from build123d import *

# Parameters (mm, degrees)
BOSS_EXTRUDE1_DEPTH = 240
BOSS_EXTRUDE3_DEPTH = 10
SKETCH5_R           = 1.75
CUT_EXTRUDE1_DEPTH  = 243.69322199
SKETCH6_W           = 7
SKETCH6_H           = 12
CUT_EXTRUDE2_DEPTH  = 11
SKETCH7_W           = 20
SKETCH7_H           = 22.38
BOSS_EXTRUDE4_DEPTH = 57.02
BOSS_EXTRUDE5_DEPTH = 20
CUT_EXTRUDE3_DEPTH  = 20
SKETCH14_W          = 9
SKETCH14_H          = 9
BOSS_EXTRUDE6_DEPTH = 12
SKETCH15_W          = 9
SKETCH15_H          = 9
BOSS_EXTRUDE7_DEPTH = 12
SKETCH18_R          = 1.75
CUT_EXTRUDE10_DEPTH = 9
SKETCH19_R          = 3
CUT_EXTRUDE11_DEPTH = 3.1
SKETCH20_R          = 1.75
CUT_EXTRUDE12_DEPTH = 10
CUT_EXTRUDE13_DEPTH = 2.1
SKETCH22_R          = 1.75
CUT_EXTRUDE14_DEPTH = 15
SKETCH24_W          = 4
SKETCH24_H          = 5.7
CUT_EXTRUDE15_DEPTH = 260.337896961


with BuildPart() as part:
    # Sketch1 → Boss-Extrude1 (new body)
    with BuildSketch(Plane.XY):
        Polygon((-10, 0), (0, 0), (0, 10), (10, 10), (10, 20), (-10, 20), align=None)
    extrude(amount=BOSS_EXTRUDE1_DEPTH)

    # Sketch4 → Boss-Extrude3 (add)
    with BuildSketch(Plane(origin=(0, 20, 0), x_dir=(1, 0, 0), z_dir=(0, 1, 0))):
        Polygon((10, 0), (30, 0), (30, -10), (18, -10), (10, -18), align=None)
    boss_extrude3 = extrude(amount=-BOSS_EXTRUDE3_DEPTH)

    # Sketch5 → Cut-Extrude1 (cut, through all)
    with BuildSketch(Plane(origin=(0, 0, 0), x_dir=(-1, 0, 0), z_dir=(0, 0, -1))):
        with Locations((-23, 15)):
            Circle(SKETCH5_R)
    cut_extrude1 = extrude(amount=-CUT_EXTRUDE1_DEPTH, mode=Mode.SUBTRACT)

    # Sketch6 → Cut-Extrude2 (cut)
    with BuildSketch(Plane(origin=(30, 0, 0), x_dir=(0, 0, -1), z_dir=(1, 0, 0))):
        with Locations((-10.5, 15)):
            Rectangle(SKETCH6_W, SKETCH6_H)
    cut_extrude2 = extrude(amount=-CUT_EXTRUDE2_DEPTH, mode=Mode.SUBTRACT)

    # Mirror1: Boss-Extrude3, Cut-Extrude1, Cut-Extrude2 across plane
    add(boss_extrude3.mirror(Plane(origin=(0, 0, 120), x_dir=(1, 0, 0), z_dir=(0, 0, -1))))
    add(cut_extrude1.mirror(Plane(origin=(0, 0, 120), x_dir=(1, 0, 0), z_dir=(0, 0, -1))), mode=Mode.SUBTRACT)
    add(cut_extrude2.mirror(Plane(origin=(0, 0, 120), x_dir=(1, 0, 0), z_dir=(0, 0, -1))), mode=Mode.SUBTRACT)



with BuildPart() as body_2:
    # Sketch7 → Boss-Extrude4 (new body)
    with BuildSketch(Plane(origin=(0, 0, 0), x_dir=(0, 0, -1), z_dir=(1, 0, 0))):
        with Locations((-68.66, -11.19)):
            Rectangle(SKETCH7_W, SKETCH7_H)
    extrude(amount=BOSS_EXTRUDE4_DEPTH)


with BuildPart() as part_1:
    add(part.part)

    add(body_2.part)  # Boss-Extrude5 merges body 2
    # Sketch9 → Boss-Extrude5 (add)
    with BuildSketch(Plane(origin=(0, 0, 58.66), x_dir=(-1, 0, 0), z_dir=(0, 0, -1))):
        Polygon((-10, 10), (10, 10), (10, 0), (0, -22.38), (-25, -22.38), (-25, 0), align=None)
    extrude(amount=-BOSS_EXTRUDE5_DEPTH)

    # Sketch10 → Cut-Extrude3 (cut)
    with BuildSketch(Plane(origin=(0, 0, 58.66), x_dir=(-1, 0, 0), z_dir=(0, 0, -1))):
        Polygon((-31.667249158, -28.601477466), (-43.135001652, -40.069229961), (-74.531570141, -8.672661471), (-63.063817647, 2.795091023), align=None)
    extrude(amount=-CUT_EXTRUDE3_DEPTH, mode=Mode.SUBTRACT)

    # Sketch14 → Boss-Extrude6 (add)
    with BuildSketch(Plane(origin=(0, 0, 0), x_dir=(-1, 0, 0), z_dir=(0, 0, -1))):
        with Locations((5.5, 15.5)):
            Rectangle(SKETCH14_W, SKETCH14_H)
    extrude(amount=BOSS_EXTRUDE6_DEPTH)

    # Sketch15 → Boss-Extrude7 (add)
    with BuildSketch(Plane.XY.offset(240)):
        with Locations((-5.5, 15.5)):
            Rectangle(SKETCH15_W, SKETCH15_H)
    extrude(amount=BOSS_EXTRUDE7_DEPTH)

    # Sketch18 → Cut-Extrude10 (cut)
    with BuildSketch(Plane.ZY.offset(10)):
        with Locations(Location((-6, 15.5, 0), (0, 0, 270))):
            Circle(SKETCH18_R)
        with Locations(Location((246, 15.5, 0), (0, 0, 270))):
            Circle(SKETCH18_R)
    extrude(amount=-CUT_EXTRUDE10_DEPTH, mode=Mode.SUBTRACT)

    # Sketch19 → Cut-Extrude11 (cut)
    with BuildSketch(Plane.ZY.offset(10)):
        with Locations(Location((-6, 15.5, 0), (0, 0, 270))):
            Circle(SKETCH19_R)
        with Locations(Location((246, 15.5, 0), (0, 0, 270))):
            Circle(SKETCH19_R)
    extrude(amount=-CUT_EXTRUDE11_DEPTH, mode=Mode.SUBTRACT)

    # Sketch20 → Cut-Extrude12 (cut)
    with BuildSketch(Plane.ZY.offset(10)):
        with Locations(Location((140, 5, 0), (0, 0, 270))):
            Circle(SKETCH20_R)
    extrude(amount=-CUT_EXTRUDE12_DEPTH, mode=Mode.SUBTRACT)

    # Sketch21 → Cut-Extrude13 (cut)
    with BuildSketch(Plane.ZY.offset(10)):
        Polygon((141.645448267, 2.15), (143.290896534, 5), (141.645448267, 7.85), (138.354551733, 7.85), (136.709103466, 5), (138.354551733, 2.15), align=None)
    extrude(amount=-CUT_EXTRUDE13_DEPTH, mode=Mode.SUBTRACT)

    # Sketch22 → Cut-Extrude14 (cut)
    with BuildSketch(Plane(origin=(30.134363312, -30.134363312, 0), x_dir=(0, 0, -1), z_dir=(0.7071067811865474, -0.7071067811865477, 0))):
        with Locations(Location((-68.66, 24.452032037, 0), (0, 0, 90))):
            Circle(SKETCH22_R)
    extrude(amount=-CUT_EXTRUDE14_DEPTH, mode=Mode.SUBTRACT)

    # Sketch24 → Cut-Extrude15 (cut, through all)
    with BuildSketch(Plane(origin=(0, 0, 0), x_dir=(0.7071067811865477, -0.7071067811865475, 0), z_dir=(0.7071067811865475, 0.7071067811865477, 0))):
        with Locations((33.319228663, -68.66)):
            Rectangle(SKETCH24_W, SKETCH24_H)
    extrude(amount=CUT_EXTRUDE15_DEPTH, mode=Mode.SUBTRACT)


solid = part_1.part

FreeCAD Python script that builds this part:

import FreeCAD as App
import Part
import Sketcher
from FreeCAD import Vector
Q = App.Units.Quantity


def add_polygon(sketch, points):
    """Adds a closed chain of lines whose ends are joined by coincident constraints."""
    first, n = sketch.GeometryCount, len(points)
    for a, b in zip(points, points[1:] + points[:1]):
        sketch.addGeometry(Part.LineSegment(App.Vector(*a, 0), App.Vector(*b, 0)), False)
    for i in range(n):
        sketch.addConstraint(Sketcher.Constraint("Coincident", first + i, 2, first + (i + 1) % n, 1))

doc = App.newDocument("Part")
params = doc.addObject("Spreadsheet::Sheet", "Params")
for row, (alias, value) in enumerate([
    ("sketch1_width", "10 mm"),
    ("pad1_length", "240 mm"),
    ("sketch2_width", "20 mm"),
    ("sketch2_width2", "12 mm"),
    ("sketch2_height", "18 mm"),
    ("sketch2_height2", "10 mm"),
    ("pad2_length", "10 mm"),
    ("sketch3_diameter", "3.5 mm"),
    ("sketch4_width", "12 mm"),
    ("sketch4_height", "7 mm"),
    ("pocket2_length", "11 mm"),
    ("sketch5_height", "20 mm"),
    ("sketch5_width", "22.38 mm"),
    ("pad3_length", "57.02 mm"),
    ("sketch6_width", "20 mm"),
    ("sketch6_width2", "25 mm"),
    ("sketch6_height", "10 mm"),
    ("sketch6_height2", "22.38 mm"),
    ("pad4_length", "20 mm"),
    ("pocket3_length", "20 mm"),
    ("sketch8_width", "9 mm"),
    ("pad5_length", "12 mm"),
    ("sketch9_width", "9 mm"),
    ("pad6_length", "12 mm"),
    ("sketch10_diameter", "3.5 mm"),
    ("pocket4_length", "9 mm"),
    ("sketch11_diameter", "6 mm"),
    ("pocket5_length", "3.1 mm"),
    ("sketch12_diameter", "3.5 mm"),
    ("pocket6_length", "10 mm"),
    ("pocket7_length", "2.1 mm"),
    ("sketch14_diameter", "3.5 mm"),
    ("pocket8_length", "15 mm"),
    ("sketch15_width", "4 mm"),
    ("sketch15_height", "5.7 mm"),
], start=1):
    params.set(f"A{row}", alias)
    params.set(f"B{row}", "=" + value)
    params.setAlias(f"B{row}", alias)

body = doc.addObject("PartDesign::Body", "Body")

# Sketch on XY plane
sketch1 = doc.addObject("Sketcher::SketchObject", "Sketch")
body.addObject(sketch1)
sketch1.AttachmentSupport = (doc.XY_Plane, [""])
sketch1.MapMode = "FlatFace"
add_polygon(sketch1, [(-10, 0), (0, 0), (0, 10), (10, 10), (10, 20), (-10, 20)])  # lines 0-5
sketch1.addConstraint(Sketcher.Constraint("Horizontal", 0))
sketch1.addConstraint(Sketcher.Constraint("Vertical", 1))
sketch1.addConstraint(Sketcher.Constraint("Horizontal", 2))
sketch1.addConstraint(Sketcher.Constraint("Vertical", 3))
sketch1.addConstraint(Sketcher.Constraint("Horizontal", 4))
sketch1.addConstraint(Sketcher.Constraint("Vertical", 5))
sketch1.addConstraint(Sketcher.Constraint("Coincident", 0, 2, -1, 1))
sketch1.addConstraint(Sketcher.Constraint("Equal", 0, 2))
sketch1.addConstraint(Sketcher.Constraint("Equal", 2, 1))
sketch1.addConstraint(Sketcher.Constraint("Equal", 1, 3))
sketch1.addConstraint(Sketcher.Constraint("DistanceX", 0, 1, 0, 2, 10.0))
sketch1.setExpression("Constraints[16]", "Params.sketch1_width")
pad1 = doc.addObject("PartDesign::Pad", "Pad")
body.addObject(pad1)
pad1.Profile = sketch1
pad1.setExpression("Length", "Params.pad1_length")

# Sketch on XZ plane
sketch2 = doc.addObject("Sketcher::SketchObject", "Sketch001")
body.addObject(sketch2)
sketch2.AttachmentSupport = (doc.XZ_Plane, [""])
sketch2.MapMode = "FlatFace"
sketch2.AttachmentOffset = App.Placement(Vector(0, 0, -20), App.Rotation())
add_polygon(sketch2, [(30, 0), (10, 0), (10, 18), (18, 10), (30, 10)])  # lines 0-4
sketch2.addConstraint(Sketcher.Constraint("Horizontal", 0))
sketch2.addConstraint(Sketcher.Constraint("Vertical", 1))
sketch2.addConstraint(Sketcher.Constraint("Horizontal", 3))
sketch2.addConstraint(Sketcher.Constraint("Vertical", 4))
sketch2.addConstraint(Sketcher.Constraint("PointOnObject", 0, 2, -1))
sketch2.addConstraint(Sketcher.Constraint("DistanceX", 0, 2, 0, 1, 20.0))
sketch2.addConstraint(Sketcher.Constraint("DistanceX", 3, 1, 3, 2, 12.0))
sketch2.addConstraint(Sketcher.Constraint("DistanceY", 1, 1, 1, 2, 18.0))
sketch2.addConstraint(Sketcher.Constraint("DistanceY", 4, 2, 4, 1, 10.0))
sketch2.addConstraint(Sketcher.Constraint("DistanceX", -1, 1, 0, 2, 10.0))
sketch2.setExpression("Constraints[10]", "Params.sketch2_width")
sketch2.setExpression("Constraints[11]", "Params.sketch2_width2")
sketch2.setExpression("Constraints[12]", "Params.sketch2_height")
sketch2.setExpression("Constraints[13]", "Params.sketch2_height2")
pad2 = doc.addObject("PartDesign::Pad", "Pad001")
body.addObject(pad2)
pad2.Profile = sketch2
pad2.setExpression("Length", "Params.pad2_length")

# Sketch on XY plane
sketch3 = doc.addObject("Sketcher::SketchObject", "Sketch002")
body.addObject(sketch3)
sketch3.AttachmentSupport = (doc.XY_Plane, [""])
sketch3.MapMode = "FlatFace"
sketch3.addGeometry(Part.Circle(Vector(23, 15, 0), Vector(0, 0, 1), 1.8), False)
sketch3.addConstraint(Sketcher.Constraint("Diameter", 0, 3.5))
sketch3.addConstraint(Sketcher.Constraint("DistanceX", -1, 1, 0, 3, 23.0))
sketch3.addConstraint(Sketcher.Constraint("DistanceY", -1, 1, 0, 3, 15.0))
sketch3.setExpression("Constraints[0]", "Params.sketch3_diameter")
pocket1 = doc.addObject("PartDesign::Pocket", "Pocket")
body.addObject(pocket1)
pocket1.Profile = sketch3
pocket1.Type = "ThroughAll"
pocket1.Reversed = True

# Sketch on YZ plane
sketch4 = doc.addObject("Sketcher::SketchObject", "Sketch003")
body.addObject(sketch4)
sketch4.AttachmentSupport = (doc.YZ_Plane, [""])
sketch4.MapMode = "FlatFace"
sketch4.AttachmentOffset = App.Placement(Vector(0, 0, 30), App.Rotation())
add_polygon(sketch4, [(21, 14), (9, 14), (9, 7), (21, 7)])  # lines 0-3
sketch4.addConstraint(Sketcher.Constraint("Horizontal", 0))
sketch4.addConstraint(Sketcher.Constraint("Vertical", 1))
sketch4.addConstraint(Sketcher.Constraint("Horizontal", 2))
sketch4.addConstraint(Sketcher.Constraint("Vertical", 3))
sketch4.addConstraint(Sketcher.Constraint("DistanceX", 0, 2, 0, 1, 12.0))
sketch4.addConstraint(Sketcher.Constraint("DistanceY", 1, 2, 1, 1, 7.0))
sketch4.addConstraint(Sketcher.Constraint("DistanceX", -1, 1, 0, 2, 9.0))
sketch4.addConstraint(Sketcher.Constraint("DistanceY", -1, 1, 0, 2, 14.0))
sketch4.setExpression("Constraints[8]", "Params.sketch4_width")
sketch4.setExpression("Constraints[9]", "Params.sketch4_height")
pocket2 = doc.addObject("PartDesign::Pocket", "Pocket001")
body.addObject(pocket2)
pocket2.Profile = sketch4
pocket2.setExpression("Length", "Params.pocket2_length")
doc.recompute()

datumplane = doc.addObject("PartDesign::Plane", "DatumPlane")
body.addObject(datumplane)
datumplane.AttachmentSupport = (doc.XY_Plane, [""])
datumplane.MapMode = "FlatFace"
datumplane.AttachmentOffset = App.Placement(Vector(0, 0, 120), App.Rotation())
mirrored = doc.addObject("PartDesign::Mirrored", "Mirrored")
body.addObject(mirrored)
mirrored.Originals = [pad2, pocket1, pocket2]
mirrored.MirrorPlane = (datumplane, [""])
body.Tip = mirrored
body2 = doc.addObject("PartDesign::Body", "Body001")

# Sketch on YZ plane
sketch5 = doc.addObject("Sketcher::SketchObject", "Sketch004")
body2.addObject(sketch5)
sketch5.AttachmentSupport = (doc.getObject("YZ_Plane001"), [""])
sketch5.MapMode = "FlatFace"
add_polygon(sketch5, [(0, 79), (-22, 79), (-22, 59), (0, 59)])  # lines 0-3
sketch5.addConstraint(Sketcher.Constraint("Horizontal", 0))
sketch5.addConstraint(Sketcher.Constraint("Vertical", 1))
sketch5.addConstraint(Sketcher.Constraint("Horizontal", 2))
sketch5.addConstraint(Sketcher.Constraint("Vertical", 3))
sketch5.addConstraint(Sketcher.Constraint("PointOnObject", 2, 2, -2))
sketch5.addConstraint(Sketcher.Constraint("DistanceY", 1, 2, 1, 1, 20.0))
sketch5.addConstraint(Sketcher.Constraint("DistanceX", 0, 2, 0, 1, 22.38))
sketch5.addConstraint(Sketcher.Constraint("DistanceY", -1, 1, 0, 2, 78.66))
sketch5.setExpression("Constraints[9]", "Params.sketch5_height")
sketch5.setExpression("Constraints[10]", "Params.sketch5_width")
pad3 = doc.addObject("PartDesign::Pad", "Pad002")
body2.addObject(pad3)
pad3.Profile = sketch5
pad3.setExpression("Length", "Params.pad3_length")
body.AllowCompound = True
doc.recompute()

boolean = doc.addObject("PartDesign::Boolean", "Boolean")
body.addObject(boolean)
boolean.Type = "Fuse"
boolean.addObjects([body2])

# Sketch on XY plane
sketch6 = doc.addObject("Sketcher::SketchObject", "Sketch005")
body.addObject(sketch6)
sketch6.AttachmentSupport = (doc.XY_Plane, [""])
sketch6.MapMode = "FlatFace"
sketch6.AttachmentOffset = App.Placement(Vector(0, 0, 58.66), App.Rotation())
add_polygon(sketch6, [(-10, 10), (10, 10), (25, 0), (25, -22), (0, -22), (-10, 0)])  # lines 0-5
sketch6.addConstraint(Sketcher.Constraint("Horizontal", 0))
sketch6.addConstraint(Sketcher.Constraint("Vertical", 2))
sketch6.addConstraint(Sketcher.Constraint("Horizontal", 3))
sketch6.addConstraint(Sketcher.Constraint("Vertical", 5))
sketch6.addConstraint(Sketcher.Constraint("PointOnObject", 1, 2, -1))
sketch6.addConstraint(Sketcher.Constraint("PointOnObject", 3, 2, -2))
sketch6.addConstraint(Sketcher.Constraint("PointOnObject", 4, 2, -1))
sketch6.addConstraint(Sketcher.Constraint("DistanceX", 0, 1, 0, 2, 20.0))
sketch6.addConstraint(Sketcher.Constraint("DistanceX", 3, 2, 3, 1, 25.0))
sketch6.addConstraint(Sketcher.Constraint("DistanceY", 5, 1, 5, 2, 10.0))
sketch6.addConstraint(Sketcher.Constraint("DistanceX", -1, 1, 0, 2, 10.0))
sketch6.addConstraint(Sketcher.Constraint("DistanceY", 2, 2, 2, 1, 22.38))
sketch6.setExpression("Constraints[13]", "Params.sketch6_width")
sketch6.setExpression("Constraints[14]", "Params.sketch6_width2")
sketch6.setExpression("Constraints[15]", "Params.sketch6_height")
sketch6.setExpression("Constraints[17]", "Params.sketch6_height2")
pad4 = doc.addObject("PartDesign::Pad", "Pad003")
body.addObject(pad4)
pad4.Profile = sketch6
pad4.setExpression("Length", "Params.pad4_length")

# Sketch on XY plane
sketch7 = doc.addObject("Sketcher::SketchObject", "Sketch006")
body.addObject(sketch7)
sketch7.AttachmentSupport = (doc.XY_Plane, [""])
sketch7.MapMode = "FlatFace"
sketch7.AttachmentOffset = App.Placement(Vector(0, 0, 58.66), App.Rotation())
add_polygon(sketch7, [(43, -40), (32, -29), (63, 3), (75, -9)])  # lines 0-3
sketch7.addConstraint(Sketcher.Constraint("Perpendicular", 0, 1))
sketch7.addConstraint(Sketcher.Constraint("Perpendicular", 1, 2))
sketch7.addConstraint(Sketcher.Constraint("Perpendicular", 2, 3))
sketch7.addConstraint(Sketcher.Constraint("Angle", 0, Q("135 deg")))
sketch7.addConstraint(Sketcher.Constraint("DistanceX", -1, 1, 3, 2, 43.135002))
sketch7.addConstraint(Sketcher.Constraint("Distance", 0, 16.217851))
sketch7.addConstraint(Sketcher.Constraint("DistanceY", -1, 1, 1, 2, 2.795091))
sketch7.addConstraint(Sketcher.Constraint("DistanceX", -1, 1, 2, 2, 74.53157))
pocket3 = doc.addObject("PartDesign::Pocket", "Pocket002")
body.addObject(pocket3)
pocket3.Profile = sketch7
pocket3.setExpression("Length", "Params.pocket3_length")
pocket3.Reversed = True

# Sketch on XY plane
sketch8 = doc.addObject("Sketcher::SketchObject", "Sketch007")
body.addObject(sketch8)
sketch8.AttachmentSupport = (doc.XY_Plane, [""])
sketch8.MapMode = "FlatFace"
add_polygon(sketch8, [(-1, 20), (-1, 11), (-10, 11), (-10, 20)])  # lines 0-3
sketch8.addConstraint(Sketcher.Constraint("Vertical", 0))
sketch8.addConstraint(Sketcher.Constraint("Horizontal", 1))
sketch8.addConstraint(Sketcher.Constraint("Vertical", 2))
sketch8.addConstraint(Sketcher.Constraint("Horizontal", 3))
sketch8.addConstraint(Sketcher.Constraint("Equal", 3, 0))
sketch8.addConstraint(Sketcher.Constraint("DistanceX", 1, 2, 1, 1, 9.0))
sketch8.addConstraint(Sketcher.Constraint("DistanceX", 0, 2, -1, 1, 1.0))
sketch8.addConstraint(Sketcher.Constraint("DistanceY", -1, 1, 0, 2, 11.0))
sketch8.setExpression("Constraints[9]", "Params.sketch8_width")
pad5 = doc.addObject("PartDesign::Pad", "Pad004")
body.addObject(pad5)
pad5.Profile = sketch8
pad5.setExpression("Length", "Params.pad5_length")
pad5.Reversed = True

# Sketch on XY plane
sketch9 = doc.addObject("Sketcher::SketchObject", "Sketch008")
body.addObject(sketch9)
sketch9.AttachmentSupport = (doc.XY_Plane, [""])
sketch9.MapMode = "FlatFace"
sketch9.AttachmentOffset = App.Placement(Vector(0, 0, 240), App.Rotation())
add_polygon(sketch9, [(-10, 20), (-10, 11), (-1, 11), (-1, 20)])  # lines 0-3
sketch9.addConstraint(Sketcher.Constraint("Vertical", 0))
sketch9.addConstraint(Sketcher.Constraint("Horizontal", 1))
sketch9.addConstraint(Sketcher.Constraint("Vertical", 2))
sketch9.addConstraint(Sketcher.Constraint("Horizontal", 3))
sketch9.addConstraint(Sketcher.Constraint("Equal", 3, 0))
sketch9.addConstraint(Sketcher.Constraint("DistanceX", 1, 1, 1, 2, 9.0))
sketch9.addConstraint(Sketcher.Constraint("DistanceX", 0, 2, -1, 1, 10.0))
sketch9.addConstraint(Sketcher.Constraint("DistanceY", -1, 1, 0, 2, 11.0))
sketch9.setExpression("Constraints[9]", "Params.sketch9_width")
pad6 = doc.addObject("PartDesign::Pad", "Pad005")
body.addObject(pad6)
pad6.Profile = sketch9
pad6.setExpression("Length", "Params.pad6_length")

# Sketch on YZ plane
sketch10 = doc.addObject("Sketcher::SketchObject", "Sketch009")
body.addObject(sketch10)
sketch10.AttachmentSupport = (doc.YZ_Plane, [""])
sketch10.MapMode = "FlatFace"
sketch10.AttachmentOffset = App.Placement(Vector(0, 0, -10), App.Rotation())
sketch10.addGeometry(Part.Circle(Vector(15.5, -6, 0), Vector(0, 0, 1), 1.8), False)
sketch10.addGeometry(Part.Circle(Vector(15.5, 246, 0), Vector(0, 0, 1), 1.8), False)
sketch10.addConstraint(Sketcher.Constraint("Equal", 0, 1))
sketch10.addConstraint(Sketcher.Constraint("Vertical", 0, 3, 1, 3))
sketch10.addConstraint(Sketcher.Constraint("Diameter", 0, 3.5))
sketch10.addConstraint(Sketcher.Constraint("DistanceY", 0, 3, -1, 1, 6.0))
sketch10.addConstraint(Sketcher.Constraint("DistanceY", -1, 1, 1, 3, 246.0))
sketch10.addConstraint(Sketcher.Constraint("DistanceX", -1, 1, 0, 3, 15.5))
sketch10.setExpression("Constraints[2]", "Params.sketch10_diameter")
pocket4 = doc.addObject("PartDesign::Pocket", "Pocket003")
body.addObject(pocket4)
pocket4.Profile = sketch10
pocket4.setExpression("Length", "Params.pocket4_length")
pocket4.Reversed = True

# Sketch on YZ plane
sketch11 = doc.addObject("Sketcher::SketchObject", "Sketch010")
body.addObject(sketch11)
sketch11.AttachmentSupport = (doc.YZ_Plane, [""])
sketch11.MapMode = "FlatFace"
sketch11.AttachmentOffset = App.Placement(Vector(0, 0, -10), App.Rotation())
sketch11.addGeometry(Part.Circle(Vector(15.5, -6, 0), Vector(0, 0, 1), 3), False)
sketch11.addGeometry(Part.Circle(Vector(15.5, 246, 0), Vector(0, 0, 1), 3), False)
sketch11.addConstraint(Sketcher.Constraint("Equal", 0, 1))
sketch11.addConstraint(Sketcher.Constraint("Vertical", 0, 3, 1, 3))
sketch11.addConstraint(Sketcher.Constraint("Diameter", 0, 6.0))
sketch11.addConstraint(Sketcher.Constraint("DistanceY", 0, 3, -1, 1, 6.0))
sketch11.addConstraint(Sketcher.Constraint("DistanceY", -1, 1, 1, 3, 246.0))
sketch11.addConstraint(Sketcher.Constraint("DistanceX", -1, 1, 0, 3, 15.5))
sketch11.setExpression("Constraints[2]", "Params.sketch11_diameter")
pocket5 = doc.addObject("PartDesign::Pocket", "Pocket004")
body.addObject(pocket5)
pocket5.Profile = sketch11
pocket5.setExpression("Length", "Params.pocket5_length")
pocket5.Reversed = True

# Sketch on YZ plane
sketch12 = doc.addObject("Sketcher::SketchObject", "Sketch011")
body.addObject(sketch12)
sketch12.AttachmentSupport = (doc.YZ_Plane, [""])
sketch12.MapMode = "FlatFace"
sketch12.AttachmentOffset = App.Placement(Vector(0, 0, -10), App.Rotation())
sketch12.addGeometry(Part.Circle(Vector(5, 140, 0), Vector(0, 0, 1), 1.8), False)
sketch12.addConstraint(Sketcher.Constraint("Diameter", 0, 3.5))
sketch12.addConstraint(Sketcher.Constraint("DistanceX", -1, 1, 0, 3, 5.0))
sketch12.addConstraint(Sketcher.Constraint("DistanceY", -1, 1, 0, 3, 140.0))
sketch12.setExpression("Constraints[0]", "Params.sketch12_diameter")
pocket6 = doc.addObject("PartDesign::Pocket", "Pocket005")
body.addObject(pocket6)
pocket6.Profile = sketch12
pocket6.setExpression("Length", "Params.pocket6_length")
pocket6.Reversed = True

# Sketch on YZ plane
sketch13 = doc.addObject("Sketcher::SketchObject", "Sketch012")
body.addObject(sketch13)
sketch13.AttachmentSupport = (doc.YZ_Plane, [""])
sketch13.MapMode = "FlatFace"
sketch13.AttachmentOffset = App.Placement(Vector(0, 0, -10), App.Rotation())
add_polygon(sketch13, [(2.1, 141.6), (5, 143.3), (7.8, 141.6), (7.8, 138.4), (5, 136.7), (2.1, 138.4)])  # lines 0-5
sketch13.addConstraint(Sketcher.Constraint("Vertical", 2))
sketch13.addConstraint(Sketcher.Constraint("Vertical", 5))
sketch13.addConstraint(Sketcher.Constraint("Parallel", 0, 3))
sketch13.addConstraint(Sketcher.Constraint("Parallel", 1, 4))
sketch13.addConstraint(Sketcher.Constraint("Horizontal", 2, 2, 4, 2))
sketch13.addConstraint(Sketcher.Constraint("Horizontal", 1, 2, 5, 2))
sketch13.addConstraint(Sketcher.Constraint("Vertical", 0, 2, 3, 2))
sketch13.addConstraint(Sketcher.Constraint("Angle", 0, Q("30 deg")))
sketch13.addConstraint(Sketcher.Constraint("DistanceX", -1, 1, 0, 2, 5.0))
sketch13.addConstraint(Sketcher.Constraint("DistanceX", 4, 2, 2, 2, 5.7))
sketch13.addConstraint(Sketcher.Constraint("DistanceY", 2, 2, 2, 1, 3.290897))
sketch13.addConstraint(Sketcher.Constraint("DistanceY", -1, 1, 1, 2, 141.645448))
pocket7 = doc.addObject("PartDesign::Pocket", "Pocket006")
body.addObject(pocket7)
pocket7.Profile = sketch13
pocket7.setExpression("Length", "Params.pocket7_length")
pocket7.Reversed = True

# Sketch on an angled plane
sketch14 = doc.addObject("Sketcher::SketchObject", "Sketch013")
body.addObject(sketch14)
sketch14.Placement = App.Placement(Vector(30.134363, -30.134363, 0), App.Rotation(Vector(0, 0, -1), Vector(0.707106781, 0.707106781, 0), Vector(0.707106781, -0.707106781, 0), "ZXY"))
sketch14.addGeometry(Part.Circle(Vector(-68.7, 24.5, 0), Vector(0, 0, 1), 1.8), False)
sketch14.addConstraint(Sketcher.Constraint("Diameter", 0, 3.5))
sketch14.addConstraint(Sketcher.Constraint("DistanceX", 0, 3, -1, 1, 68.66))
sketch14.addConstraint(Sketcher.Constraint("DistanceY", -1, 1, 0, 3, 24.452032))
sketch14.setExpression("Constraints[0]", "Params.sketch14_diameter")
pocket8 = doc.addObject("PartDesign::Pocket", "Pocket007")
body.addObject(pocket8)
pocket8.Profile = sketch14
pocket8.setExpression("Length", "Params.pocket8_length")

# Sketch on an angled plane
sketch15 = doc.addObject("Sketcher::SketchObject", "Sketch014")
body.addObject(sketch15)
sketch15.Placement = App.Placement(Vector(0, 0, 0), App.Rotation(Vector(0.707106781, -0.707106781, 0), Vector(0, 0, -0.999999999), Vector(0.707106781, 0.707106781, 0), "ZXY"))
add_polygon(sketch15, [(31.3, -65.8), (31.3, -71.5), (35.3, -71.5), (35.3, -65.8)])  # lines 0-3
sketch15.addConstraint(Sketcher.Constraint("Vertical", 0))
sketch15.addConstraint(Sketcher.Constraint("Horizontal", 1))
sketch15.addConstraint(Sketcher.Constraint("Vertical", 2))
sketch15.addConstraint(Sketcher.Constraint("Horizontal", 3))
sketch15.addConstraint(Sketcher.Constraint("DistanceX", 1, 1, 1, 2, 4.0))
sketch15.addConstraint(Sketcher.Constraint("DistanceY", 0, 2, 0, 1, 5.7))
sketch15.addConstraint(Sketcher.Constraint("DistanceY", 0, 2, -1, 1, 71.51))
sketch15.addConstraint(Sketcher.Constraint("DistanceX", -1, 1, 0, 2, 31.319229))
sketch15.setExpression("Constraints[8]", "Params.sketch15_width")
sketch15.setExpression("Constraints[9]", "Params.sketch15_height")
pocket9 = doc.addObject("PartDesign::Pocket", "Pocket008")
body.addObject(pocket9)
pocket9.Profile = sketch15
pocket9.Type = "ThroughAll"
pocket9.Reversed = True

doc.recompute()
